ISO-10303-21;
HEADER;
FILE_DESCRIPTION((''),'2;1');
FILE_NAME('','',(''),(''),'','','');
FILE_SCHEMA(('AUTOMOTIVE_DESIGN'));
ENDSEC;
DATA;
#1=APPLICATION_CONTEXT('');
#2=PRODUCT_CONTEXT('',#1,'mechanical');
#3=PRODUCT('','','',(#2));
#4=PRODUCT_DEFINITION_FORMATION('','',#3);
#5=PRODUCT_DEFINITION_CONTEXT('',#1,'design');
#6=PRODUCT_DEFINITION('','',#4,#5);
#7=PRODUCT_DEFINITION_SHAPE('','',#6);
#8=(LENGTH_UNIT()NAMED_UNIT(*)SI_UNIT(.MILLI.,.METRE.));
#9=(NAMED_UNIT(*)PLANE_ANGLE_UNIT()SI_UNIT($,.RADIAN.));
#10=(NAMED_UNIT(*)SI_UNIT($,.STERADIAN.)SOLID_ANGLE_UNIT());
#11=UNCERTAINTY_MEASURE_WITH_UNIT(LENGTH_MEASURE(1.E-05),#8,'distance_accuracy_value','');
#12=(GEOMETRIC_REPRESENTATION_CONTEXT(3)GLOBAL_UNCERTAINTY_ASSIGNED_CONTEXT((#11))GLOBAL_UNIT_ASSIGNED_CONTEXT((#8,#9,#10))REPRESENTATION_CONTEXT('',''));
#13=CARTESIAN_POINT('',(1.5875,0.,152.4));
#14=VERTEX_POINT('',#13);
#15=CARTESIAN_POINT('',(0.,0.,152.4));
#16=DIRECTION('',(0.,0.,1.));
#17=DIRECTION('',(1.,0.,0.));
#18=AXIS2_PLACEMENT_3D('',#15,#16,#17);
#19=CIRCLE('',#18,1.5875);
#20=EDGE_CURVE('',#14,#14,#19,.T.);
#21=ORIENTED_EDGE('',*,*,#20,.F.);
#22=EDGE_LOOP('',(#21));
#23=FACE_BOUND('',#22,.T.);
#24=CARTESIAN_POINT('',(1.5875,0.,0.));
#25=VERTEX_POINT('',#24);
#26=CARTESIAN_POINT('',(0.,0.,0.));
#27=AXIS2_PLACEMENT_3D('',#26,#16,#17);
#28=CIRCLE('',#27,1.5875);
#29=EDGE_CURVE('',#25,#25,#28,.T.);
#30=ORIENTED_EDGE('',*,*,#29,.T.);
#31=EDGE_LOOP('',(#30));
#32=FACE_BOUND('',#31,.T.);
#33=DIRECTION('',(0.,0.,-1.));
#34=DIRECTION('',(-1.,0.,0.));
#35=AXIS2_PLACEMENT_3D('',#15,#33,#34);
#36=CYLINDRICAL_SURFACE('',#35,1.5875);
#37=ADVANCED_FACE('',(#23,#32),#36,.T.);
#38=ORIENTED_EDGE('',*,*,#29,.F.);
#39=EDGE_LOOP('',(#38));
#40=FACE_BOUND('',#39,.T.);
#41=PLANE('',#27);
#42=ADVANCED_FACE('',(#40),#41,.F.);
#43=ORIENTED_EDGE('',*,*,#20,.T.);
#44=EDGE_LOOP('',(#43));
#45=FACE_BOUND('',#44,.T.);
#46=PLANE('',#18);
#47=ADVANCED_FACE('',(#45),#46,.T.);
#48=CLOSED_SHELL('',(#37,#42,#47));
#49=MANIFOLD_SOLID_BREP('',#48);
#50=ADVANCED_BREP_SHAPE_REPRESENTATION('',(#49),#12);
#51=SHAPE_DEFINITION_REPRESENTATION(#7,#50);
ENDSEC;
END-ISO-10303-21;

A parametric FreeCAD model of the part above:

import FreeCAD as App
import Part
import Sketcher
from FreeCAD import Vector
Q = App.Units.Quantity

doc = App.newDocument("Part")
body = doc.addObject("PartDesign::Body", "Body")

sketch1 = body.newObject("Sketcher::SketchObject", "Sketch")
sketch1.AttachmentSupport = (doc.getObject("XY_Plane"), [""])
sketch1.MapMode = "FlatFace"
sketch1.addGeometry(Part.Circle(Vector(0, 0, 0), Vector(0, 0, 1), 1.5875), False)
sketch1.addConstraint([
    Sketcher.Constraint("Coincident", 0, 3, -1, 1),
    Sketcher.Constraint("Diameter", 0, Q("0.125 in")),
])
pad1 = body.newObject("PartDesign::Pad", "Pad")
pad1.Profile = sketch1
pad1.Length = Q("6 in")

doc.recompute()
